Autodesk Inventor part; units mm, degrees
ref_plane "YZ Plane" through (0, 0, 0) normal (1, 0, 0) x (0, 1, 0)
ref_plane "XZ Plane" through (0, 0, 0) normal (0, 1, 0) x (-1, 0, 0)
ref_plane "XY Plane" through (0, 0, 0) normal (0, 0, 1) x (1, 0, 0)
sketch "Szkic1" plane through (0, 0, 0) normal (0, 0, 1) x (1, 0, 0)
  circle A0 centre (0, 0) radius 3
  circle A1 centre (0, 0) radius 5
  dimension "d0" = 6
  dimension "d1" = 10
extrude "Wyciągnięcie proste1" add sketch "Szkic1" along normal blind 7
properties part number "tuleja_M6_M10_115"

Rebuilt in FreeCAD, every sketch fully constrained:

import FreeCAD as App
import Part
import Sketcher

V = App.Vector

doc = App.newDocument("Part")
body = doc.addObject("PartDesign::Body", "Body")

# Sketch on XY plane
sketch1 = body.newObject("Sketcher::SketchObject", "Sketch")
sketch1.AttachmentSupport = (doc.getObject("XY_Plane"), [""])
sketch1.MapMode = "FlatFace"
sketch1.addGeometry([
    Part.Circle(V(0, 0, 0), V(0, 0, 1), 5),
    Part.Circle(V(0, 0, 0), V(0, 0, 1), 3),
], False)
sketch1.addConstraint([
    Sketcher.Constraint("Coincident", 0, 3, -1, 1),
    Sketcher.Constraint("Coincident", 1, 3, -1, 1),
    Sketcher.Constraint("Diameter", 0, 10.0),
    Sketcher.Constraint("Diameter", 1, 6.0),
])
pad1 = body.newObject("PartDesign::Pad", "Pad")
pad1.Profile = sketch1
pad1.Length = 7

doc.recompute()
